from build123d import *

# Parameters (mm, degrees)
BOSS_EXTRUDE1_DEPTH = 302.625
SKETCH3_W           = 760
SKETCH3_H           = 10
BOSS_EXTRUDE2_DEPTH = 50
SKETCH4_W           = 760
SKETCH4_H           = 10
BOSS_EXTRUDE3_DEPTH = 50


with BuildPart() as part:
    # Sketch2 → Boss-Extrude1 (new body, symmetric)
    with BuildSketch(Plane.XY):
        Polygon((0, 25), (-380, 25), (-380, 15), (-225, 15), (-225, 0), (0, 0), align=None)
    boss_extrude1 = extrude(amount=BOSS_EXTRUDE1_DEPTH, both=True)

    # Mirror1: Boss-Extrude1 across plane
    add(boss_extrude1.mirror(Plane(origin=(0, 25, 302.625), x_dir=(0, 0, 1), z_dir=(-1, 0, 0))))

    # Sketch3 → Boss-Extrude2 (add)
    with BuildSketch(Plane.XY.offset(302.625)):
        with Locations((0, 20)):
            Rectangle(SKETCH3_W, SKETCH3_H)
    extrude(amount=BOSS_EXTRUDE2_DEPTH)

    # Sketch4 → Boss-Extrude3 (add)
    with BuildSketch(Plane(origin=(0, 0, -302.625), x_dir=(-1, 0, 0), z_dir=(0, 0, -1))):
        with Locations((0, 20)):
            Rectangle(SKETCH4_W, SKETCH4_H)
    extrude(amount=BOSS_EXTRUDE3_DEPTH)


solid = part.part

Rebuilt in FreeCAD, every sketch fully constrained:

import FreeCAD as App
import Part
import Sketcher

V = App.Vector


def add_polygon(sketch, points):
    """Adds a closed chain of lines whose ends are joined by coincident constraints."""
    first, n = sketch.GeometryCount, len(points)
    for a, b in zip(points, points[1:] + points[:1]):
        sketch.addGeometry(Part.LineSegment(App.Vector(*a, 0), App.Vector(*b, 0)), False)
    for i in range(n):
        sketch.addConstraint(Sketcher.Constraint("Coincident", first + i, 2, first + (i + 1) % n, 1))

doc = App.newDocument("Part")
body = doc.addObject("PartDesign::Body", "Body")

# Sketch on XY plane
sketch1 = body.newObject("Sketcher::SketchObject", "Sketch")
sketch1.AttachmentSupport = (doc.getObject("XY_Plane"), [""])
sketch1.MapMode = "FlatFace"
add_polygon(sketch1, [(0, 25), (-380, 25), (-380, 15), (-225, 15), (-225, 0), (0, 0)])  # lines 0-5
sketch1.addConstraint(Sketcher.Constraint("Horizontal", 0))
sketch1.addConstraint(Sketcher.Constraint("Vertical", 1))
sketch1.addConstraint(Sketcher.Constraint("Horizontal", 2))
sketch1.addConstraint(Sketcher.Constraint("Vertical", 3))
sketch1.addConstraint(Sketcher.Constraint("Horizontal", 4))
sketch1.addConstraint(Sketcher.Constraint("Vertical", 5))
sketch1.addConstraint(Sketcher.Constraint("Coincident", 4, 2, -1, 1))
sketch1.addConstraint(Sketcher.Constraint("DistanceX", 0, 2, 0, 1, 380.0))
sketch1.addConstraint(Sketcher.Constraint("DistanceX", 2, 1, 2, 2, 155.0))
sketch1.addConstraint(Sketcher.Constraint("DistanceY", 1, 2, 1, 1, 10.0))
sketch1.addConstraint(Sketcher.Constraint("DistanceY", 3, 2, 3, 1, 15.0))
pad1 = body.newObject("PartDesign::Pad", "Pad")
pad1.Profile = sketch1
pad1.Length = 605.25
pad1.Midplane = True
doc.recompute()

mirrored = body.newObject("PartDesign::Mirrored", "Mirrored")
mirrored.Originals = [pad1]
mirrored.MirrorPlane = (doc.getObject("YZ_Plane"), [""])
body.Tip = mirrored

# Sketch on XY plane
sketch2 = body.newObject("Sketcher::SketchObject", "Sketch001")
sketch2.AttachmentSupport = (doc.getObject("XY_Plane"), [""])
sketch2.MapMode = "FlatFace"
sketch2.AttachmentOffset = App.Placement(V(0, 0, 302.625), App.Rotation())
add_polygon(sketch2, [(-380, 25), (-380, 15), (380, 15), (380, 25)])  # lines 0-3
sketch2.addConstraint(Sketcher.Constraint("Vertical", 0))
sketch2.addConstraint(Sketcher.Constraint("Horizontal", 1))
sketch2.addConstraint(Sketcher.Constraint("Vertical", 2))
sketch2.addConstraint(Sketcher.Constraint("Horizontal", 3))
sketch2.addConstraint(Sketcher.Constraint("DistanceX", 1, 1, 1, 2, 760.0))
sketch2.addConstraint(Sketcher.Constraint("DistanceY", 0, 2, 0, 1, 10.0))
sketch2.addConstraint(Sketcher.Constraint("DistanceX", 0, 2, -1, 1, 380.0))
sketch2.addConstraint(Sketcher.Constraint("DistanceY", -1, 1, 0, 2, 15.0))
pad2 = body.newObject("PartDesign::Pad", "Pad001")
pad2.Profile = sketch2
pad2.Length = 50

# Sketch on XY plane
sketch3 = body.newObject("Sketcher::SketchObject", "Sketch002")
sketch3.AttachmentSupport = (doc.getObject("XY_Plane"), [""])
sketch3.MapMode = "FlatFace"
sketch3.AttachmentOffset = App.Placement(V(0, 0, -302.625), App.Rotation())
add_polygon(sketch3, [(380, 25), (380, 15), (-380, 15), (-380, 25)])  # lines 0-3
sketch3.addConstraint(Sketcher.Constraint("Vertical", 0))
sketch3.addConstraint(Sketcher.Constraint("Horizontal", 1))
sketch3.addConstraint(Sketcher.Constraint("Vertical", 2))
sketch3.addConstraint(Sketcher.Constraint("Horizontal", 3))
sketch3.addConstraint(Sketcher.Constraint("DistanceX", 1, 2, 1, 1, 760.0))
sketch3.addConstraint(Sketcher.Constraint("DistanceY", 0, 2, 0, 1, 10.0))
sketch3.addConstraint(Sketcher.Constraint("DistanceX", -1, 1, 0, 2, 380.0))
sketch3.addConstraint(Sketcher.Constraint("DistanceY", -1, 1, 0, 2, 15.0))
pad3 = body.newObject("PartDesign::Pad", "Pad002")
pad3.Profile = sketch3
pad3.Length = 50
pad3.Reversed = True

doc.recompute()
